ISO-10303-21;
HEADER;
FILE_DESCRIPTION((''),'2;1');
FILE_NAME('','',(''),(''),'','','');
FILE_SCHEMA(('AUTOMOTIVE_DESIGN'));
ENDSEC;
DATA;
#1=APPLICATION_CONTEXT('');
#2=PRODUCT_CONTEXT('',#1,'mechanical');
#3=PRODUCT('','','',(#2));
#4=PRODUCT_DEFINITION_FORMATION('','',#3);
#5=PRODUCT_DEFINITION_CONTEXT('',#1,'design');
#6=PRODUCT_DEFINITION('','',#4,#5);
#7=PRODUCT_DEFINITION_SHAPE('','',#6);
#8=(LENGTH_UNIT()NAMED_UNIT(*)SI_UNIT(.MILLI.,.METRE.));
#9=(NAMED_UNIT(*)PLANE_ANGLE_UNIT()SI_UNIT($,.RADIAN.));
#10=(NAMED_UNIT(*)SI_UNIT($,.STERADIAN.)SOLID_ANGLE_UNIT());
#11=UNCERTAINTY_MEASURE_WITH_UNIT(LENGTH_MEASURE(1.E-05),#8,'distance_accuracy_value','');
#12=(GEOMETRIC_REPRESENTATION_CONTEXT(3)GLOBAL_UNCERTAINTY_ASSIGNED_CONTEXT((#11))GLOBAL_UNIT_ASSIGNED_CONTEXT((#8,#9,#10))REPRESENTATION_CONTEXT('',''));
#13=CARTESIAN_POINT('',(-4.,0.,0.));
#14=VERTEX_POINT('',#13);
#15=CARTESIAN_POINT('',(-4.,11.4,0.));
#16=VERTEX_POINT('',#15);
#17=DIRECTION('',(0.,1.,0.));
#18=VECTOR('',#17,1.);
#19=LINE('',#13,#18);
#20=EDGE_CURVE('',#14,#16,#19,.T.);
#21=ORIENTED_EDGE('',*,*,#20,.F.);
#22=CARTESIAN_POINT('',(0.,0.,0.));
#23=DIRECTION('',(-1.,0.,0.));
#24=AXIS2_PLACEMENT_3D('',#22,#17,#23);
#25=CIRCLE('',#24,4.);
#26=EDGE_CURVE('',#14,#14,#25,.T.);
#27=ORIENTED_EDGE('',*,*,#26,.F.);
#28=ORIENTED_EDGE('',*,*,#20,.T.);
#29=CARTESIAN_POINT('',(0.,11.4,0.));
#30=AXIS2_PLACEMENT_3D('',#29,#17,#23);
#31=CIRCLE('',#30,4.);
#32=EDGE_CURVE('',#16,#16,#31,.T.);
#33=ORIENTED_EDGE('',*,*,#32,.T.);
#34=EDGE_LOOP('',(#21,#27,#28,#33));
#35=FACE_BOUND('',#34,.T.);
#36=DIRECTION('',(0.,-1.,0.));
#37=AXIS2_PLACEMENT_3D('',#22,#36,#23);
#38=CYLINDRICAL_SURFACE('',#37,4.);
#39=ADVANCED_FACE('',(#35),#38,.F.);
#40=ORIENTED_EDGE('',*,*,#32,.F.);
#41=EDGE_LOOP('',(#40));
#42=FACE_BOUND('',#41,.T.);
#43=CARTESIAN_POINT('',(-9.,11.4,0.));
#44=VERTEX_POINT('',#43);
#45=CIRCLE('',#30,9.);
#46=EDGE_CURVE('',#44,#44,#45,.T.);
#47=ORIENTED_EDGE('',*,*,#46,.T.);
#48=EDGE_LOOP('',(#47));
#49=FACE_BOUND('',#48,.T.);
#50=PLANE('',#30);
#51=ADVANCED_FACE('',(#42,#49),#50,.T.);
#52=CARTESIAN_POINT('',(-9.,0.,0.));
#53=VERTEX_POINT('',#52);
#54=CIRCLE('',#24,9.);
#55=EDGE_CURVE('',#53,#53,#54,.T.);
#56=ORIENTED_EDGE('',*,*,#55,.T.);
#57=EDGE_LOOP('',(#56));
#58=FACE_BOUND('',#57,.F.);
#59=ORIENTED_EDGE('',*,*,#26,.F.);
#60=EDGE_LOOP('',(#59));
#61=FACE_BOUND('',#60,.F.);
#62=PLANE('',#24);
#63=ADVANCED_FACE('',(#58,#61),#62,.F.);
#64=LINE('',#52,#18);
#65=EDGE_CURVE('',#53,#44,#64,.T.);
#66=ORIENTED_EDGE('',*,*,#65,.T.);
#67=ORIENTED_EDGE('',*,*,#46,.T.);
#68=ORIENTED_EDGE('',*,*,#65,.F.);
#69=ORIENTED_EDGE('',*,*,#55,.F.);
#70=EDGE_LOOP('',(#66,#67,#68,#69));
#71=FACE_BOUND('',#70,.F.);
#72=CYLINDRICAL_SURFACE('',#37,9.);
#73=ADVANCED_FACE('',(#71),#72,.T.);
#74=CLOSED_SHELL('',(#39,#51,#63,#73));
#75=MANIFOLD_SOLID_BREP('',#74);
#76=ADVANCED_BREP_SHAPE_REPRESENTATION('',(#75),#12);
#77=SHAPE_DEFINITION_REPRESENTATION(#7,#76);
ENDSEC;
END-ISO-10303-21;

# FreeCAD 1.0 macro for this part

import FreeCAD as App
import Part
import Sketcher

doc = App.newDocument("Part")
body = doc.addObject("PartDesign::Body", "Body")

# Sketch on XZ plane
sketch1 = doc.addObject("Sketcher::SketchObject", "Sketch")
body.addObject(sketch1)
sketch1.AttachmentSupport = (doc.XZ_Plane, [""])
sketch1.MapMode = "FlatFace"
sketch1.addGeometry(Part.Circle(App.Vector(0, 0, 0), App.Vector(0, 0, 1), 9), False)
sketch1.addGeometry(Part.Circle(App.Vector(0, 0, 0), App.Vector(0, 0, 1), 4), False)
sketch1.addConstraint(Sketcher.Constraint("Coincident", 0, 3, -1, 1))
sketch1.addConstraint(Sketcher.Constraint("Coincident", 1, 3, -1, 1))
sketch1.addConstraint(Sketcher.Constraint("Diameter", 0, 18.0))
sketch1.addConstraint(Sketcher.Constraint("Diameter", 1, 8.0))
pad1 = doc.addObject("PartDesign::Pad", "Pad")
body.addObject(pad1)
pad1.Profile = sketch1
pad1.Length = 11.4
pad1.Reversed = True

doc.recompute()
